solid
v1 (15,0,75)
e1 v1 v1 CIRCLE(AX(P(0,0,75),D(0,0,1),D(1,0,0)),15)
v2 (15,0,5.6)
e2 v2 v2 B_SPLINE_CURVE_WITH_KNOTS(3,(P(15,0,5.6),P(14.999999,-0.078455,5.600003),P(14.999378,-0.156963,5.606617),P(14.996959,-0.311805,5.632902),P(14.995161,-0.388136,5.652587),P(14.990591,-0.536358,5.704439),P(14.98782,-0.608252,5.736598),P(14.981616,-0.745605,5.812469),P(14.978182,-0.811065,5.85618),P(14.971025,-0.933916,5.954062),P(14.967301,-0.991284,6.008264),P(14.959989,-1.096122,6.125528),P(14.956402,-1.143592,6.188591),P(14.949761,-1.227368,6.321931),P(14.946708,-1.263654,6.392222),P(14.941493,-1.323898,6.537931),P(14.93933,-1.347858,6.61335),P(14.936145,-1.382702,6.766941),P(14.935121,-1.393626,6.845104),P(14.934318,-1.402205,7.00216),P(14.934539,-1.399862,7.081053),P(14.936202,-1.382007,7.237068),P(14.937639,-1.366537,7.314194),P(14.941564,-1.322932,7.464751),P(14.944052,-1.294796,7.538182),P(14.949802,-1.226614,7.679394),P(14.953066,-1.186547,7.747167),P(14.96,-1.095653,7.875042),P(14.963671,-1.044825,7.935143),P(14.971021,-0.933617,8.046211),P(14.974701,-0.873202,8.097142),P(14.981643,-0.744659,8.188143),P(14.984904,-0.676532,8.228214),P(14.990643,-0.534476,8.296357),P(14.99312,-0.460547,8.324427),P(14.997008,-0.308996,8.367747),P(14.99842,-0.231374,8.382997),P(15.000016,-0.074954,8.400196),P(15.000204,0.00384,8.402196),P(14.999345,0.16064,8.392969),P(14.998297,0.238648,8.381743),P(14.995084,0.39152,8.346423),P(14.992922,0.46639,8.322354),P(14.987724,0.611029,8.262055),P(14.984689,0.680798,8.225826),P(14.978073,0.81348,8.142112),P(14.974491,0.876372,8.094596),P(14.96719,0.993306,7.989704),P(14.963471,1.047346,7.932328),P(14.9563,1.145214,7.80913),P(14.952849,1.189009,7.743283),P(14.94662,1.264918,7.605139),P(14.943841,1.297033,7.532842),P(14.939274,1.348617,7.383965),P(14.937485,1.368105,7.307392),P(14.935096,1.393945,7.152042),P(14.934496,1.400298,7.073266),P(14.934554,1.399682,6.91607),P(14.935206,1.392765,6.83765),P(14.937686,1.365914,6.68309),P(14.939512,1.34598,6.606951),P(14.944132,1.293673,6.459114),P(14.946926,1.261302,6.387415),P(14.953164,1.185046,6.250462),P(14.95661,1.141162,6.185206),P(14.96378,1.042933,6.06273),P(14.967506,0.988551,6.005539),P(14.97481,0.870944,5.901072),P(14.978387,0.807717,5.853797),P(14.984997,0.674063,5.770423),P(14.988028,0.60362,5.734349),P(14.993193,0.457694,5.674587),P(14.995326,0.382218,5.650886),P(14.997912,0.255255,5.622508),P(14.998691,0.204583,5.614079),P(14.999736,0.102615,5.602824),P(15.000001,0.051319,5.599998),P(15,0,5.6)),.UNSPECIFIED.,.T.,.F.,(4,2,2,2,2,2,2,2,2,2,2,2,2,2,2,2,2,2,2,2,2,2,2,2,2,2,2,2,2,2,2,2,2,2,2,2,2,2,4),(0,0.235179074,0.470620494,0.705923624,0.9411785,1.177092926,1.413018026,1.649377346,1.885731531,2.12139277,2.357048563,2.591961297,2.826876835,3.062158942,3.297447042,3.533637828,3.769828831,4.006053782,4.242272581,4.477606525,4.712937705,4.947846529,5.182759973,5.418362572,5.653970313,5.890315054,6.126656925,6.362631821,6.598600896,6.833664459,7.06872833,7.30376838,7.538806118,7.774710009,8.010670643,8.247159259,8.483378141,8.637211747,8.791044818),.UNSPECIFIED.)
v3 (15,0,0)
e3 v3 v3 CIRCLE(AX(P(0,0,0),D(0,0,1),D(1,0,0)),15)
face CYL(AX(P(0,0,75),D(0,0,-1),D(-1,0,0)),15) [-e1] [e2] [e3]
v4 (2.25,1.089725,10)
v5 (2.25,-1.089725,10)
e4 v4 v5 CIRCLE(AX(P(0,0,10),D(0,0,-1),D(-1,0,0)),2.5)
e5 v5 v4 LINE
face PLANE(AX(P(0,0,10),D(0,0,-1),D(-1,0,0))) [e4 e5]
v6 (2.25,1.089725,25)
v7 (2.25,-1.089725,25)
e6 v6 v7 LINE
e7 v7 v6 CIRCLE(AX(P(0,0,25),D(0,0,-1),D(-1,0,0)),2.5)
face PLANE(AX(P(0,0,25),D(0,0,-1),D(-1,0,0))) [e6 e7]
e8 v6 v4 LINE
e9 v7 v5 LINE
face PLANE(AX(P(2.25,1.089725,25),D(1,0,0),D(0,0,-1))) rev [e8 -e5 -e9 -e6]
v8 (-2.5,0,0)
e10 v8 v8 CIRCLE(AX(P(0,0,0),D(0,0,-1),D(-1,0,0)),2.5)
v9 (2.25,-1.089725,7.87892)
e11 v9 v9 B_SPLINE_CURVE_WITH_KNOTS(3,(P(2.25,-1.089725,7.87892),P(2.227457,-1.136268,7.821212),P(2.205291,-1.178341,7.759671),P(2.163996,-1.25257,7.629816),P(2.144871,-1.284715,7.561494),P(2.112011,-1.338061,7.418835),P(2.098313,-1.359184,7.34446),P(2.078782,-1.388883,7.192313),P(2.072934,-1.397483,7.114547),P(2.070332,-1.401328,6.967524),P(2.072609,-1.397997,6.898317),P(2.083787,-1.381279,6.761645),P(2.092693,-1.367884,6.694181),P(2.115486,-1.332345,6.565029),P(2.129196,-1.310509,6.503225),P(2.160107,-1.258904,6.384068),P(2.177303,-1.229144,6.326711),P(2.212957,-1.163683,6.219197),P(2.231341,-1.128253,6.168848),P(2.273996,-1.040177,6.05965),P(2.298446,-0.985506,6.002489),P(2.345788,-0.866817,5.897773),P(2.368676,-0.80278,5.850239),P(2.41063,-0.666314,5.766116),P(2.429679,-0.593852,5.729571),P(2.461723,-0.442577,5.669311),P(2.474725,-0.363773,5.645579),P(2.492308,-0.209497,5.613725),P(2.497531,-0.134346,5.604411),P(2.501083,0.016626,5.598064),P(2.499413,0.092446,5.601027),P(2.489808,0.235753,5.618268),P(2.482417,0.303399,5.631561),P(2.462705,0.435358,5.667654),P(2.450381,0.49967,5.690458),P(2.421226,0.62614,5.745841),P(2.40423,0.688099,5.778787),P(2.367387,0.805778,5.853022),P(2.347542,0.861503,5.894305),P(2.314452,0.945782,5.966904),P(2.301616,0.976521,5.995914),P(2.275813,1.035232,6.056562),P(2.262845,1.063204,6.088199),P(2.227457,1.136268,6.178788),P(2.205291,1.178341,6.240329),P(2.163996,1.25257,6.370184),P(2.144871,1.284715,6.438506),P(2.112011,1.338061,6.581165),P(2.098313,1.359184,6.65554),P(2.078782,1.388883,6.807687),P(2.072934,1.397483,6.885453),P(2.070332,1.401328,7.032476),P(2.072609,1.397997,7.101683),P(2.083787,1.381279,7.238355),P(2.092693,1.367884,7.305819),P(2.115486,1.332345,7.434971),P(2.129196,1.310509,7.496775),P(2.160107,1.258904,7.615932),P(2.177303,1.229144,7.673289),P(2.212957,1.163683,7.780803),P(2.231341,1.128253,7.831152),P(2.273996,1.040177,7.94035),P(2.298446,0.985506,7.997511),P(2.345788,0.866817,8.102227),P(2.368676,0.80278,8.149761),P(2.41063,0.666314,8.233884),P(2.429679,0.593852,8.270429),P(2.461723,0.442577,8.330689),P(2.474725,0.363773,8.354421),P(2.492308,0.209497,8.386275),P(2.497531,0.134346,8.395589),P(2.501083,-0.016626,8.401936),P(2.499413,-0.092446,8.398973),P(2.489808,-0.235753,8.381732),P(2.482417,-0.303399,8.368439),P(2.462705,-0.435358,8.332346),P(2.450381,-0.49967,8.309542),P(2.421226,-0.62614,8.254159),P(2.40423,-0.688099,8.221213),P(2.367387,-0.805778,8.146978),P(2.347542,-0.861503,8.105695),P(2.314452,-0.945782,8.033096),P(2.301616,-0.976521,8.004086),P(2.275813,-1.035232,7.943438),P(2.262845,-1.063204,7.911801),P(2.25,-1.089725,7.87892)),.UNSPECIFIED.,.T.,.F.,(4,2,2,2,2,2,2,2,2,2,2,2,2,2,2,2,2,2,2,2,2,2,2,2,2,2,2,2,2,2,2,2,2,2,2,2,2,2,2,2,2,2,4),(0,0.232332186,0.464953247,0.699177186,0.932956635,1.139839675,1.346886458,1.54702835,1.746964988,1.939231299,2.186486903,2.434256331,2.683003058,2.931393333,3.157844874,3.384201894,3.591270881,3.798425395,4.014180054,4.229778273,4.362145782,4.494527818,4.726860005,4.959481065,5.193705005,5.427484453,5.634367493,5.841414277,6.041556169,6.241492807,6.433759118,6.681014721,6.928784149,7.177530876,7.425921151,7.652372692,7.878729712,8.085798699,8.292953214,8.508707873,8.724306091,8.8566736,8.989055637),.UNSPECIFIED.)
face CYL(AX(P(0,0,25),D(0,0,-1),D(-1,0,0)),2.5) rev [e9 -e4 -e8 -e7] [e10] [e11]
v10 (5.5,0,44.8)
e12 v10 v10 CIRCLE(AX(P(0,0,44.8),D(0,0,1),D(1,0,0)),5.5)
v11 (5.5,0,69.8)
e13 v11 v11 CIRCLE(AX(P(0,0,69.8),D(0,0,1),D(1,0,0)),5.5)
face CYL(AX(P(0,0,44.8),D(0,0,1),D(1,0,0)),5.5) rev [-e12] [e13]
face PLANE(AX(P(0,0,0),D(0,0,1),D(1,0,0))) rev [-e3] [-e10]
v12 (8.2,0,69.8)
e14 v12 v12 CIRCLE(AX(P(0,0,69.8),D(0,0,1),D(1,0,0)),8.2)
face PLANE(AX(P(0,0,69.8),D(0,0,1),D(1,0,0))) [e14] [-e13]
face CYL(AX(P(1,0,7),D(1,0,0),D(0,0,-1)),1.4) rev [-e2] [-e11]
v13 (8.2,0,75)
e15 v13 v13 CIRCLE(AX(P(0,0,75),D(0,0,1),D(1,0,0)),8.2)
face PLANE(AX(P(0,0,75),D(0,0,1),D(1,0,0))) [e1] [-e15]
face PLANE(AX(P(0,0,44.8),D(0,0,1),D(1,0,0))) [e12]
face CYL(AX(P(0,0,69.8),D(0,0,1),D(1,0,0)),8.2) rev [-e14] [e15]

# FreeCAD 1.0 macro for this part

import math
import FreeCAD as App
import Part
import Sketcher
from FreeCAD import Vector
Q = App.Units.Quantity

doc = App.newDocument("Part")
params = doc.addObject("Spreadsheet::Sheet", "Params")
for row, (alias, value) in enumerate([
    ("sketch1_diameter", "30 mm"),
    ("pad1_length", "75 mm"),
    ("sketch2_diameter", "16.4 mm"),
    ("pocket1_length", "5.2 mm"),
    ("sketch3_radius", "2.5 mm"),
    ("pocket2_length", "25 mm"),
    ("sketch4_diameter", "2.8 mm"),
    ("pocket3_length", "14 mm"),
    ("sketch5_diameter", "11 mm"),
    ("pocket4_length", "25 mm"),
    ("sketch6_radius", "2.5 mm"),
    ("pocket5_length", "10 mm"),
], start=1):
    params.set(f"A{row}", alias)
    params.set(f"B{row}", "=" + value)
    params.setAlias(f"B{row}", alias)

body = doc.addObject("PartDesign::Body", "Body")

# Sketch on XY plane
sketch1 = body.newObject("Sketcher::SketchObject", "Sketch")
sketch1.AttachmentSupport = (doc.getObject("XY_Plane"), [""])
sketch1.MapMode = "FlatFace"
sketch1.addGeometry(Part.Circle(Vector(0, 0, 0), Vector(0, 0, 1), 15), False)
sketch1.addConstraint(Sketcher.Constraint("Coincident", 0, 3, -1, 1))
sketch1.addConstraint(Sketcher.Constraint("Diameter", 0, Q("30 mm")))
sketch1.setExpression("Constraints[1]", "Params.sketch1_diameter")
pad1 = body.newObject("PartDesign::Pad", "Pad")
pad1.Profile = sketch1
pad1.setExpression("Length", "Params.pad1_length")

# Sketch on XY plane
sketch2 = body.newObject("Sketcher::SketchObject", "Sketch001")
sketch2.AttachmentSupport = (doc.getObject("XY_Plane"), [""])
sketch2.MapMode = "FlatFace"
sketch2.AttachmentOffset = App.Placement(Vector(0, 0, 75), App.Rotation())
sketch2.addGeometry(Part.Circle(Vector(0, 0, 0), Vector(0, 0, 1), 8), False)
sketch2.addConstraint(Sketcher.Constraint("Coincident", 0, 3, -1, 1))
sketch2.addConstraint(Sketcher.Constraint("Diameter", 0, Q("16.4 mm")))
sketch2.setExpression("Constraints[1]", "Params.sketch2_diameter")
pocket1 = body.newObject("PartDesign::Pocket", "Pocket")
pocket1.Profile = sketch2
pocket1.setExpression("Length", "Params.pocket1_length")

# Sketch on XY plane
sketch3 = body.newObject("Sketcher::SketchObject", "Sketch002")
sketch3.AttachmentSupport = (doc.getObject("XY_Plane"), [""])
sketch3.MapMode = "FlatFace"
sketch3.addGeometry(Part.LineSegment(Vector(2.2, 1.1, 0), Vector(2.2, -1.1, 0)), False)
sketch3.addGeometry(Part.ArcOfCircle(Part.Circle(Vector(0, 0, 0), Vector(0, 0, 1), 2.5), math.radians(26), math.radians(334)), False)
sketch3.addConstraint(Sketcher.Constraint("Coincident", 0, 1, 1, 1))
sketch3.addConstraint(Sketcher.Constraint("Coincident", 1, 2, 0, 2))
sketch3.addConstraint(Sketcher.Constraint("Vertical", 0))
sketch3.addConstraint(Sketcher.Constraint("Coincident", 1, 3, -1, 1))
sketch3.addConstraint(Sketcher.Constraint("Radius", 1, Q("2.5 mm")))
sketch3.addConstraint(Sketcher.Constraint("DistanceX", -1, 1, 0, 1, Q("2.25 mm")))
sketch3.setExpression("Constraints[4]", "Params.sketch3_radius")
pocket2 = body.newObject("PartDesign::Pocket", "Pocket001")
pocket2.Profile = sketch3
pocket2.setExpression("Length", "Params.pocket2_length")
pocket2.Reversed = True

# Sketch on YZ plane
sketch4 = body.newObject("Sketcher::SketchObject", "Sketch003")
sketch4.AttachmentSupport = (doc.getObject("YZ_Plane"), [""])
sketch4.MapMode = "FlatFace"
sketch4.AttachmentOffset = App.Placement(Vector(0, 0, 15), App.Rotation())
sketch4.addGeometry(Part.Circle(Vector(0, 7, 0), Vector(0, 0, 1), 1.4), False)
sketch4.addConstraint(Sketcher.Constraint("PointOnObject", 0, 3, -2))
sketch4.addConstraint(Sketcher.Constraint("Diameter", 0, Q("2.8 mm")))
sketch4.addConstraint(Sketcher.Constraint("DistanceY", -1, 1, 0, 3, Q("7 mm")))
sketch4.setExpression("Constraints[1]", "Params.sketch4_diameter")
pocket3 = body.newObject("PartDesign::Pocket", "Pocket002")
pocket3.Profile = sketch4
pocket3.setExpression("Length", "Params.pocket3_length")

# Sketch on XY plane
sketch5 = body.newObject("Sketcher::SketchObject", "Sketch004")
sketch5.AttachmentSupport = (doc.getObject("XY_Plane"), [""])
sketch5.MapMode = "FlatFace"
sketch5.AttachmentOffset = App.Placement(Vector(0, 0, 69.8), App.Rotation())
sketch5.addGeometry(Part.Circle(Vector(0, 0, 0), Vector(0, 0, 1), 6), False)
sketch5.addConstraint(Sketcher.Constraint("Coincident", 0, 3, -1, 1))
sketch5.addConstraint(Sketcher.Constraint("Diameter", 0, Q("11 mm")))
sketch5.setExpression("Constraints[1]", "Params.sketch5_diameter")
pocket4 = body.newObject("PartDesign::Pocket", "Pocket003")
pocket4.Profile = sketch5
pocket4.setExpression("Length", "Params.pocket4_length")

# Sketch on XY plane
sketch6 = body.newObject("Sketcher::SketchObject", "Sketch005")
sketch6.AttachmentSupport = (doc.getObject("XY_Plane"), [""])
sketch6.MapMode = "FlatFace"
sketch6.addGeometry(Part.LineSegment(Vector(2.2, -1.1, 0), Vector(2.2, 1.1, 0)), False)
sketch6.addGeometry(Part.ArcOfCircle(Part.Circle(Vector(0, 0, 0), Vector(0, 0, 1), 2.5), math.radians(-26), math.radians(26)), False)
sketch6.addConstraint(Sketcher.Constraint("Coincident", 0, 1, 1, 1))
sketch6.addConstraint(Sketcher.Constraint("Coincident", 1, 2, 0, 2))
sketch6.addConstraint(Sketcher.Constraint("Vertical", 0))
sketch6.addConstraint(Sketcher.Constraint("Coincident", 1, 3, -1, 1))
sketch6.addConstraint(Sketcher.Constraint("Radius", 1, Q("2.5 mm")))
sketch6.addConstraint(Sketcher.Constraint("DistanceX", -1, 1, 0, 1, Q("2.25 mm")))
sketch6.setExpression("Constraints[4]", "Params.sketch6_radius")
pocket5 = body.newObject("PartDesign::Pocket", "Pocket004")
pocket5.Profile = sketch6
pocket5.setExpression("Length", "Params.pocket5_length")
pocket5.Reversed = True

doc.recompute()
